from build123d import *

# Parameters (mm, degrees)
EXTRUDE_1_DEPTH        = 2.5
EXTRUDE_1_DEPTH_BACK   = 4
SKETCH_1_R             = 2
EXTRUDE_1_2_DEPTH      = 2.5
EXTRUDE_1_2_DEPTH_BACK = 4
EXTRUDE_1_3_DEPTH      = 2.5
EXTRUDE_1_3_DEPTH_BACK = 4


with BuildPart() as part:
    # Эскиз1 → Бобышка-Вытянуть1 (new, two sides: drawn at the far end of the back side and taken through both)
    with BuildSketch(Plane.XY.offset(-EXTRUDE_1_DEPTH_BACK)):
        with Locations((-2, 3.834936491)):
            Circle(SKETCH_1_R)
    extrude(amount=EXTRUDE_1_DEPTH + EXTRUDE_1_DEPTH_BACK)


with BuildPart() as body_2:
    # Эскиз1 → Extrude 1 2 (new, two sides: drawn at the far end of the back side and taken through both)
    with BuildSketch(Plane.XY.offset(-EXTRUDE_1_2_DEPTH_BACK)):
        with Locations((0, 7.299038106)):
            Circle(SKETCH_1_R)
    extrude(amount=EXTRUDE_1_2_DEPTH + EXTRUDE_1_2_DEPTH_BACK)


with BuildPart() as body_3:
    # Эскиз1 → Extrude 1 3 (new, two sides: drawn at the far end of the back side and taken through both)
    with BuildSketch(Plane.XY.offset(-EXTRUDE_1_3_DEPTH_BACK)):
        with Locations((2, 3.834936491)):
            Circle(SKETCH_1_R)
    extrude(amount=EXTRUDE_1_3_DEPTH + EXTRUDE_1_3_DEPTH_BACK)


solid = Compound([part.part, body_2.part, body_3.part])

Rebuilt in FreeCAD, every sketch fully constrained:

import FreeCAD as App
import Part
import Sketcher

V = App.Vector
Q = App.Units.Quantity

doc = App.newDocument("Part")
body = doc.addObject("PartDesign::Body", "Body")

# Sketch on XY plane
sketch1 = body.newObject("Sketcher::SketchObject", "Sketch")
sketch1.AttachmentSupport = (doc.getObject("XY_Plane"), [""])
sketch1.MapMode = "FlatFace"
sketch1.addGeometry(Part.Circle(V(-2, 3.834936, 0), V(0, 0, 1), 2), False)
sketch1.addConstraint([
    Sketcher.Constraint("Diameter", 0, Q("4 mm")),
    Sketcher.Constraint("DistanceX", 0, 3, -1, 1, Q("2 mm")),
    Sketcher.Constraint("DistanceY", -1, 1, 0, 3, Q("3.834936 mm")),
])
pad1 = body.newObject("PartDesign::Pad", "Pad")
pad1.Profile = sketch1
pad1.Type = "TwoLengths"
pad1.Length = 2.5
pad1.Length2 = 4
body2 = doc.addObject("PartDesign::Body", "Body001")

# Sketch on XY plane
sketch2 = body2.newObject("Sketcher::SketchObject", "Sketch001")
sketch2.AttachmentSupport = (doc.getObject("XY_Plane001"), [""])
sketch2.MapMode = "FlatFace"
sketch2.addGeometry(Part.Circle(V(0, 7.299038, 0), V(0, 0, 1), 2), False)
sketch2.addConstraint([
    Sketcher.Constraint("PointOnObject", 0, 3, -2),
    Sketcher.Constraint("Diameter", 0, Q("4 mm")),
    Sketcher.Constraint("DistanceY", -1, 1, 0, 3, Q("7.299038 mm")),
])
pad2 = body2.newObject("PartDesign::Pad", "Pad001")
pad2.Profile = sketch2
pad2.Type = "TwoLengths"
pad2.Length = 2.5
pad2.Length2 = 4
body3 = doc.addObject("PartDesign::Body", "Body002")

# Sketch on XY plane
sketch3 = body3.newObject("Sketcher::SketchObject", "Sketch002")
sketch3.AttachmentSupport = (doc.getObject("XY_Plane002"), [""])
sketch3.MapMode = "FlatFace"
sketch3.addGeometry(Part.Circle(V(2, 3.834936, 0), V(0, 0, 1), 2), False)
sketch3.addConstraint([
    Sketcher.Constraint("Diameter", 0, Q("4 mm")),
    Sketcher.Constraint("DistanceX", -1, 1, 0, 3, Q("2 mm")),
    Sketcher.Constraint("DistanceY", -1, 1, 0, 3, Q("3.834936 mm")),
])
pad3 = body3.newObject("PartDesign::Pad", "Pad002")
pad3.Profile = sketch3
pad3.Type = "TwoLengths"
pad3.Length = 2.5
pad3.Length2 = 4

doc.recompute()
